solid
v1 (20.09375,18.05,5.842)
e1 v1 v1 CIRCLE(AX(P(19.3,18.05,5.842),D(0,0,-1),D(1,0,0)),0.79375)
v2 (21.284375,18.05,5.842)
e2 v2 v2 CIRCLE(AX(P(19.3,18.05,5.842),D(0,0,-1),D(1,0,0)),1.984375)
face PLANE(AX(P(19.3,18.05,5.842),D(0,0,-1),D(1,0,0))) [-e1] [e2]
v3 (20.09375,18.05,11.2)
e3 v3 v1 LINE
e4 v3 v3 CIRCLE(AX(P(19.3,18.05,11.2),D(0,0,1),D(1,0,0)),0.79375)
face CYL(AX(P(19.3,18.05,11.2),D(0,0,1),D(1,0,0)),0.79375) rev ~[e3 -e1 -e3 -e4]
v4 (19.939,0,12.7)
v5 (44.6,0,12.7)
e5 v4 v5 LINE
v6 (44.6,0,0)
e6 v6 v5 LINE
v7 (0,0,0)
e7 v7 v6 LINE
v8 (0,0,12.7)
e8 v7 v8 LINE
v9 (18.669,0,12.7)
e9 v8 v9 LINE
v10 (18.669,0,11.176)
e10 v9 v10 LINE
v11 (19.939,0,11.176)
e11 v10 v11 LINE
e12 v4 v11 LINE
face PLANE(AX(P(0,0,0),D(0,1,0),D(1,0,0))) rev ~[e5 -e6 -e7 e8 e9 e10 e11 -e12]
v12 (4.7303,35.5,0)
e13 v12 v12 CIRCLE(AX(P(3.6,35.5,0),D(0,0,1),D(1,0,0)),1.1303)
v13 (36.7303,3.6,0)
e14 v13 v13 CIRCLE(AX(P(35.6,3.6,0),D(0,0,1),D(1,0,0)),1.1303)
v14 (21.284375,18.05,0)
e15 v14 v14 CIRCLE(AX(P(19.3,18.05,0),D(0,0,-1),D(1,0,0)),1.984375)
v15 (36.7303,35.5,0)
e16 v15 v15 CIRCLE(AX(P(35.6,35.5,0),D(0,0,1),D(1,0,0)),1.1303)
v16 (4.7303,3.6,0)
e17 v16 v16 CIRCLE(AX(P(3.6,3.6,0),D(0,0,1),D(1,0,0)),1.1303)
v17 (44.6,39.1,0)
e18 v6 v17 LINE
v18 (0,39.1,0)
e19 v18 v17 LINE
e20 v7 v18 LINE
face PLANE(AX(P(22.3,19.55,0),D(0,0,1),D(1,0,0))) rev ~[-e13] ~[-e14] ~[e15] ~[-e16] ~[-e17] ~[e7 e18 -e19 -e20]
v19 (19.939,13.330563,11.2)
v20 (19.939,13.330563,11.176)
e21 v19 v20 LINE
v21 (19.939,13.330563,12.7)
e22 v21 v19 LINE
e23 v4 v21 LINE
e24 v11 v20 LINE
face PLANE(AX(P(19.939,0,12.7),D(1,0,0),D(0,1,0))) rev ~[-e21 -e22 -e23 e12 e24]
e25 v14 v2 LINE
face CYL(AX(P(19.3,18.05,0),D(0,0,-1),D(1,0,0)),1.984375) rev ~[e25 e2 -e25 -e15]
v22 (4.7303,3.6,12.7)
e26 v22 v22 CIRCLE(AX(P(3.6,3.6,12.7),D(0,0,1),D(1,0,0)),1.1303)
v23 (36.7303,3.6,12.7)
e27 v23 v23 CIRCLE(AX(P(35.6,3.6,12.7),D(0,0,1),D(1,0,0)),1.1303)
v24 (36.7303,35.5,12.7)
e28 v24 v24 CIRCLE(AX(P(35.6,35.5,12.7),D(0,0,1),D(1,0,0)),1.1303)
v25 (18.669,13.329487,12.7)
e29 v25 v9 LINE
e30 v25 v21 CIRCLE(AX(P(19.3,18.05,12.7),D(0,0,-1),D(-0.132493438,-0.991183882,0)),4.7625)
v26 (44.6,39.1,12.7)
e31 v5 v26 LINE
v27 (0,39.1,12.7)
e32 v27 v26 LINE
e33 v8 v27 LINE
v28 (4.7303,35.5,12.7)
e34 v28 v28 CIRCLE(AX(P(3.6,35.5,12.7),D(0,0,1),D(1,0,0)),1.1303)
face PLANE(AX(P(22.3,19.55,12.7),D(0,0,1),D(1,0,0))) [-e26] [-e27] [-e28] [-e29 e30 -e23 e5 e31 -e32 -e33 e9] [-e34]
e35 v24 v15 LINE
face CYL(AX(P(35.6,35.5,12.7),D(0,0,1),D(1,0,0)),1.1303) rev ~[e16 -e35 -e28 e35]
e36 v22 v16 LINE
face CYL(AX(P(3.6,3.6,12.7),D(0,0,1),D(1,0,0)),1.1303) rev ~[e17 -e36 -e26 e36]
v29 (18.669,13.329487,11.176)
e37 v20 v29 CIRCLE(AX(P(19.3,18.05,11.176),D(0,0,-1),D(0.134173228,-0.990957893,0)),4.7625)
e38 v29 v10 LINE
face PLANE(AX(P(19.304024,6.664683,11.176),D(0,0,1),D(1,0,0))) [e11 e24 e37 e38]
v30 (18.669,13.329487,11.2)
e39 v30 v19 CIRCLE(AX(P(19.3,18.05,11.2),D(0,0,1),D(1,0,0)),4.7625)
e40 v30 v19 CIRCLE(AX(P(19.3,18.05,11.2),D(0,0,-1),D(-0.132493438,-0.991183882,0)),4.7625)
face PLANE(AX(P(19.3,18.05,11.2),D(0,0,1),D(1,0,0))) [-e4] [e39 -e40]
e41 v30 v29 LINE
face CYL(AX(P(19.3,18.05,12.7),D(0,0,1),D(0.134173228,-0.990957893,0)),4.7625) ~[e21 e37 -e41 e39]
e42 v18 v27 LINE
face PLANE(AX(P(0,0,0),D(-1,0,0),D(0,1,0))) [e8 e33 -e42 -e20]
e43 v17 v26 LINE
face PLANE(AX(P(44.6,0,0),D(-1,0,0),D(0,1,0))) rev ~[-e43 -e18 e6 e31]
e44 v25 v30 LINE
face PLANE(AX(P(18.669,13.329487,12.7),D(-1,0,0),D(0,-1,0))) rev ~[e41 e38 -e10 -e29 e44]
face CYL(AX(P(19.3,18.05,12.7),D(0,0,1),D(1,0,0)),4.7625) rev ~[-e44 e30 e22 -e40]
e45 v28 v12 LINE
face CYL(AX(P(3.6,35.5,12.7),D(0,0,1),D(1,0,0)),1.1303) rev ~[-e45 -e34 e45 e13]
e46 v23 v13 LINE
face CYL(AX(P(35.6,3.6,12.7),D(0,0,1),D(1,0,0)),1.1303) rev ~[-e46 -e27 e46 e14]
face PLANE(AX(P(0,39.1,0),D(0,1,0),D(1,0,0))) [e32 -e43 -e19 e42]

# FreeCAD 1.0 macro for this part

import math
import FreeCAD as App
import Part
import Sketcher
Q = App.Units.Quantity


def add_polygon(sketch, points):
    """Adds a closed chain of lines whose ends are joined by coincident constraints."""
    first, n = sketch.GeometryCount, len(points)
    for a, b in zip(points, points[1:] + points[:1]):
        sketch.addGeometry(Part.LineSegment(App.Vector(*a, 0), App.Vector(*b, 0)), False)
    for i in range(n):
        sketch.addConstraint(Sketcher.Constraint("Coincident", first + i, 2, first + (i + 1) % n, 1))

doc = App.newDocument("Part")
body = doc.addObject("PartDesign::Body", "Body")

# Sketch on XY plane
sketch1 = body.newObject("Sketcher::SketchObject", "Sketch")
sketch1.AttachmentSupport = (doc.getObject("XY_Plane"), [""])
sketch1.MapMode = "FlatFace"
add_polygon(sketch1, [(0, 39.1), (0, 0), (44.6, 0), (44.6, 39.1)])  # lines 0-3
sketch1.addConstraint([
    Sketcher.Constraint("Vertical", 0),
    Sketcher.Constraint("Horizontal", 1),
    Sketcher.Constraint("Vertical", 2),
    Sketcher.Constraint("Horizontal", 3),
    Sketcher.Constraint("Coincident", 0, 2, -1, 1),
    Sketcher.Constraint("DistanceX", 1, 1, 1, 2, 44.6),
    Sketcher.Constraint("DistanceY", 0, 2, 0, 1, 39.1),
])
pad1 = body.newObject("PartDesign::Pad", "Pad")
pad1.Profile = sketch1
pad1.Length = Q("0.5 in")

# Sketch on XY plane
sketch2 = body.newObject("Sketcher::SketchObject", "Sketch001")
sketch2.AttachmentSupport = (doc.getObject("XY_Plane"), [""])
sketch2.MapMode = "FlatFace"
sketch2.AttachmentOffset = App.Placement(App.Vector(0, 0, 0.5 * 25.4), App.Rotation())
sketch2.addGeometry([
    Part.Circle(App.Vector(3.6, 35.5, 0), App.Vector(0, 0, 1), 1.1303),
    Part.Circle(App.Vector(3.6, 3.6, 0), App.Vector(0, 0, 1), 1.1303),
    Part.Circle(App.Vector(35.6, 3.6, 0), App.Vector(0, 0, 1), 1.1303),
    Part.Circle(App.Vector(35.6, 35.5, 0), App.Vector(0, 0, 1), 1.1303),
], False)
sketch2.addConstraint([
    Sketcher.Constraint("Equal", 0, 1),
    Sketcher.Constraint("Equal", 1, 2),
    Sketcher.Constraint("Equal", 2, 3),
    Sketcher.Constraint("Horizontal", 1, 3, 2, 3),
    Sketcher.Constraint("Horizontal", 0, 3, 3, 3),
    Sketcher.Constraint("Vertical", 0, 3, 1, 3),
    Sketcher.Constraint("Vertical", 2, 3, 3, 3),
    Sketcher.Constraint("Diameter", 0, Q("0.089 in")),
    Sketcher.Constraint("DistanceX", -1, 1, 0, 3, 3.6),
    Sketcher.Constraint("DistanceY", -1, 1, 0, 3, 35.5),
    Sketcher.Constraint("DistanceY", -1, 1, 1, 3, 3.6),
    Sketcher.Constraint("DistanceX", -1, 1, 2, 3, 35.6),
])
pocket1 = body.newObject("PartDesign::Pocket", "Pocket")
pocket1.Profile = sketch2
pocket1.Length = 25

# Sketch on XY plane
sketch3 = body.newObject("Sketcher::SketchObject", "Sketch002")
sketch3.AttachmentSupport = (doc.getObject("XY_Plane"), [""])
sketch3.MapMode = "FlatFace"
sketch3.AttachmentOffset = App.Placement(App.Vector(0, 0, 0.5 * 25.4), App.Rotation())
sketch3.addGeometry(Part.Circle(App.Vector(19.3, 18.05, 0), App.Vector(0, 0, 1), 4.7625), False)
sketch3.addConstraint([
    Sketcher.Constraint("Diameter", 0, Q("0.375 in")),
    Sketcher.Constraint("DistanceX", -1, 1, 0, 3, 19.3),
    Sketcher.Constraint("DistanceY", -1, 1, 0, 3, 18.05),
])
pocket2 = body.newObject("PartDesign::Pocket", "Pocket001")
pocket2.Profile = sketch3
pocket2.Length = 1.5

# Sketch on XY plane
sketch4 = body.newObject("Sketcher::SketchObject", "Sketch003")
sketch4.AttachmentSupport = (doc.getObject("XY_Plane"), [""])
sketch4.MapMode = "FlatFace"
sketch4.AttachmentOffset = App.Placement(App.Vector(0, 0, 11.2), App.Rotation())
sketch4.addGeometry(Part.Circle(App.Vector(19.3, 18.05, 0), App.Vector(0, 0, 1), 0.79375), False)
sketch4.addConstraint([
    Sketcher.Constraint("Diameter", 0, Q("0.0625 in")),
    Sketcher.Constraint("DistanceX", -1, 1, 0, 3, 19.3),
    Sketcher.Constraint("DistanceY", -1, 1, 0, 3, 18.05),
])
pocket3 = body.newObject("PartDesign::Pocket", "Pocket002")
pocket3.Profile = sketch4
pocket3.Type = "ThroughAll"

# Sketch on XY plane
sketch5 = body.newObject("Sketcher::SketchObject", "Sketch004")
sketch5.AttachmentSupport = (doc.getObject("XY_Plane"), [""])
sketch5.MapMode = "FlatFace"
sketch5.addGeometry([
    Part.Circle(App.Vector(19.3, 18.05, 0), App.Vector(0, 0, 1), 1.984375),
    Part.Circle(App.Vector(19.3, 18.05, 0), App.Vector(0, 0, 1), 0.79375),
], False)
sketch5.addConstraint([
    Sketcher.Constraint("Coincident", 1, 3, 0, 3),
    Sketcher.Constraint("Diameter", 0, Q("0.15625 in")),
    Sketcher.Constraint("Diameter", 1, Q("0.0625 in")),
    Sketcher.Constraint("DistanceX", -1, 1, 0, 3, 19.3),
    Sketcher.Constraint("DistanceY", -1, 1, 0, 3, 18.05),
])
pocket4 = body.newObject("PartDesign::Pocket", "Pocket003")
pocket4.Profile = sketch5
pocket4.Length = Q("0.23 in")
pocket4.Reversed = True

# Sketch on XY plane
sketch6 = body.newObject("Sketcher::SketchObject", "Sketch005")
sketch6.AttachmentSupport = (doc.getObject("XY_Plane"), [""])
sketch6.MapMode = "FlatFace"
sketch6.AttachmentOffset = App.Placement(App.Vector(0, 0, 0.5 * 25.4), App.Rotation())
sketch6.addGeometry([
    Part.ArcOfCircle(Part.Circle(App.Vector(19.3, 18.05, 0), App.Vector(0, 0, 1), 4.7625), math.radians(-97.613702), math.radians(-82.289186)),
    Part.LineSegment(App.Vector(18.669, 13.329487, 0), App.Vector(18.669, 0, 0)),
    Part.LineSegment(App.Vector(18.669, 0, 0), App.Vector(19.939, 0, 0)),
    Part.LineSegment(App.Vector(19.939, 0, 0), App.Vector(19.939, 13.330563, 0)),
], False)
sketch6.addConstraint([
    Sketcher.Constraint("Coincident", 0, 1, 1, 1),
    Sketcher.Constraint("Coincident", 1, 2, 2, 1),
    Sketcher.Constraint("Coincident", 2, 2, 3, 1),
    Sketcher.Constraint("Coincident", 3, 2, 0, 2),
    Sketcher.Constraint("Vertical", 1),
    Sketcher.Constraint("Horizontal", 2),
    Sketcher.Constraint("Vertical", 3),
    Sketcher.Constraint("PointOnObject", 1, 2, -1),
    Sketcher.Constraint("Radius", 0, Q("0.1875 in")),
    Sketcher.Constraint("DistanceX", 2, 1, 2, 2, Q("0.05 in")),
    Sketcher.Constraint("DistanceX", -1, 1, 0, 1, Q("0.735 in")),
    Sketcher.Constraint("DistanceX", -1, 1, 0, 3, 19.3),
    Sketcher.Constraint("DistanceY", -1, 1, 0, 3, 18.05),
])
pocket5 = body.newObject("PartDesign::Pocket", "Pocket004")
pocket5.Profile = sketch6
pocket5.Length = Q("0.06 in")

doc.recompute()
